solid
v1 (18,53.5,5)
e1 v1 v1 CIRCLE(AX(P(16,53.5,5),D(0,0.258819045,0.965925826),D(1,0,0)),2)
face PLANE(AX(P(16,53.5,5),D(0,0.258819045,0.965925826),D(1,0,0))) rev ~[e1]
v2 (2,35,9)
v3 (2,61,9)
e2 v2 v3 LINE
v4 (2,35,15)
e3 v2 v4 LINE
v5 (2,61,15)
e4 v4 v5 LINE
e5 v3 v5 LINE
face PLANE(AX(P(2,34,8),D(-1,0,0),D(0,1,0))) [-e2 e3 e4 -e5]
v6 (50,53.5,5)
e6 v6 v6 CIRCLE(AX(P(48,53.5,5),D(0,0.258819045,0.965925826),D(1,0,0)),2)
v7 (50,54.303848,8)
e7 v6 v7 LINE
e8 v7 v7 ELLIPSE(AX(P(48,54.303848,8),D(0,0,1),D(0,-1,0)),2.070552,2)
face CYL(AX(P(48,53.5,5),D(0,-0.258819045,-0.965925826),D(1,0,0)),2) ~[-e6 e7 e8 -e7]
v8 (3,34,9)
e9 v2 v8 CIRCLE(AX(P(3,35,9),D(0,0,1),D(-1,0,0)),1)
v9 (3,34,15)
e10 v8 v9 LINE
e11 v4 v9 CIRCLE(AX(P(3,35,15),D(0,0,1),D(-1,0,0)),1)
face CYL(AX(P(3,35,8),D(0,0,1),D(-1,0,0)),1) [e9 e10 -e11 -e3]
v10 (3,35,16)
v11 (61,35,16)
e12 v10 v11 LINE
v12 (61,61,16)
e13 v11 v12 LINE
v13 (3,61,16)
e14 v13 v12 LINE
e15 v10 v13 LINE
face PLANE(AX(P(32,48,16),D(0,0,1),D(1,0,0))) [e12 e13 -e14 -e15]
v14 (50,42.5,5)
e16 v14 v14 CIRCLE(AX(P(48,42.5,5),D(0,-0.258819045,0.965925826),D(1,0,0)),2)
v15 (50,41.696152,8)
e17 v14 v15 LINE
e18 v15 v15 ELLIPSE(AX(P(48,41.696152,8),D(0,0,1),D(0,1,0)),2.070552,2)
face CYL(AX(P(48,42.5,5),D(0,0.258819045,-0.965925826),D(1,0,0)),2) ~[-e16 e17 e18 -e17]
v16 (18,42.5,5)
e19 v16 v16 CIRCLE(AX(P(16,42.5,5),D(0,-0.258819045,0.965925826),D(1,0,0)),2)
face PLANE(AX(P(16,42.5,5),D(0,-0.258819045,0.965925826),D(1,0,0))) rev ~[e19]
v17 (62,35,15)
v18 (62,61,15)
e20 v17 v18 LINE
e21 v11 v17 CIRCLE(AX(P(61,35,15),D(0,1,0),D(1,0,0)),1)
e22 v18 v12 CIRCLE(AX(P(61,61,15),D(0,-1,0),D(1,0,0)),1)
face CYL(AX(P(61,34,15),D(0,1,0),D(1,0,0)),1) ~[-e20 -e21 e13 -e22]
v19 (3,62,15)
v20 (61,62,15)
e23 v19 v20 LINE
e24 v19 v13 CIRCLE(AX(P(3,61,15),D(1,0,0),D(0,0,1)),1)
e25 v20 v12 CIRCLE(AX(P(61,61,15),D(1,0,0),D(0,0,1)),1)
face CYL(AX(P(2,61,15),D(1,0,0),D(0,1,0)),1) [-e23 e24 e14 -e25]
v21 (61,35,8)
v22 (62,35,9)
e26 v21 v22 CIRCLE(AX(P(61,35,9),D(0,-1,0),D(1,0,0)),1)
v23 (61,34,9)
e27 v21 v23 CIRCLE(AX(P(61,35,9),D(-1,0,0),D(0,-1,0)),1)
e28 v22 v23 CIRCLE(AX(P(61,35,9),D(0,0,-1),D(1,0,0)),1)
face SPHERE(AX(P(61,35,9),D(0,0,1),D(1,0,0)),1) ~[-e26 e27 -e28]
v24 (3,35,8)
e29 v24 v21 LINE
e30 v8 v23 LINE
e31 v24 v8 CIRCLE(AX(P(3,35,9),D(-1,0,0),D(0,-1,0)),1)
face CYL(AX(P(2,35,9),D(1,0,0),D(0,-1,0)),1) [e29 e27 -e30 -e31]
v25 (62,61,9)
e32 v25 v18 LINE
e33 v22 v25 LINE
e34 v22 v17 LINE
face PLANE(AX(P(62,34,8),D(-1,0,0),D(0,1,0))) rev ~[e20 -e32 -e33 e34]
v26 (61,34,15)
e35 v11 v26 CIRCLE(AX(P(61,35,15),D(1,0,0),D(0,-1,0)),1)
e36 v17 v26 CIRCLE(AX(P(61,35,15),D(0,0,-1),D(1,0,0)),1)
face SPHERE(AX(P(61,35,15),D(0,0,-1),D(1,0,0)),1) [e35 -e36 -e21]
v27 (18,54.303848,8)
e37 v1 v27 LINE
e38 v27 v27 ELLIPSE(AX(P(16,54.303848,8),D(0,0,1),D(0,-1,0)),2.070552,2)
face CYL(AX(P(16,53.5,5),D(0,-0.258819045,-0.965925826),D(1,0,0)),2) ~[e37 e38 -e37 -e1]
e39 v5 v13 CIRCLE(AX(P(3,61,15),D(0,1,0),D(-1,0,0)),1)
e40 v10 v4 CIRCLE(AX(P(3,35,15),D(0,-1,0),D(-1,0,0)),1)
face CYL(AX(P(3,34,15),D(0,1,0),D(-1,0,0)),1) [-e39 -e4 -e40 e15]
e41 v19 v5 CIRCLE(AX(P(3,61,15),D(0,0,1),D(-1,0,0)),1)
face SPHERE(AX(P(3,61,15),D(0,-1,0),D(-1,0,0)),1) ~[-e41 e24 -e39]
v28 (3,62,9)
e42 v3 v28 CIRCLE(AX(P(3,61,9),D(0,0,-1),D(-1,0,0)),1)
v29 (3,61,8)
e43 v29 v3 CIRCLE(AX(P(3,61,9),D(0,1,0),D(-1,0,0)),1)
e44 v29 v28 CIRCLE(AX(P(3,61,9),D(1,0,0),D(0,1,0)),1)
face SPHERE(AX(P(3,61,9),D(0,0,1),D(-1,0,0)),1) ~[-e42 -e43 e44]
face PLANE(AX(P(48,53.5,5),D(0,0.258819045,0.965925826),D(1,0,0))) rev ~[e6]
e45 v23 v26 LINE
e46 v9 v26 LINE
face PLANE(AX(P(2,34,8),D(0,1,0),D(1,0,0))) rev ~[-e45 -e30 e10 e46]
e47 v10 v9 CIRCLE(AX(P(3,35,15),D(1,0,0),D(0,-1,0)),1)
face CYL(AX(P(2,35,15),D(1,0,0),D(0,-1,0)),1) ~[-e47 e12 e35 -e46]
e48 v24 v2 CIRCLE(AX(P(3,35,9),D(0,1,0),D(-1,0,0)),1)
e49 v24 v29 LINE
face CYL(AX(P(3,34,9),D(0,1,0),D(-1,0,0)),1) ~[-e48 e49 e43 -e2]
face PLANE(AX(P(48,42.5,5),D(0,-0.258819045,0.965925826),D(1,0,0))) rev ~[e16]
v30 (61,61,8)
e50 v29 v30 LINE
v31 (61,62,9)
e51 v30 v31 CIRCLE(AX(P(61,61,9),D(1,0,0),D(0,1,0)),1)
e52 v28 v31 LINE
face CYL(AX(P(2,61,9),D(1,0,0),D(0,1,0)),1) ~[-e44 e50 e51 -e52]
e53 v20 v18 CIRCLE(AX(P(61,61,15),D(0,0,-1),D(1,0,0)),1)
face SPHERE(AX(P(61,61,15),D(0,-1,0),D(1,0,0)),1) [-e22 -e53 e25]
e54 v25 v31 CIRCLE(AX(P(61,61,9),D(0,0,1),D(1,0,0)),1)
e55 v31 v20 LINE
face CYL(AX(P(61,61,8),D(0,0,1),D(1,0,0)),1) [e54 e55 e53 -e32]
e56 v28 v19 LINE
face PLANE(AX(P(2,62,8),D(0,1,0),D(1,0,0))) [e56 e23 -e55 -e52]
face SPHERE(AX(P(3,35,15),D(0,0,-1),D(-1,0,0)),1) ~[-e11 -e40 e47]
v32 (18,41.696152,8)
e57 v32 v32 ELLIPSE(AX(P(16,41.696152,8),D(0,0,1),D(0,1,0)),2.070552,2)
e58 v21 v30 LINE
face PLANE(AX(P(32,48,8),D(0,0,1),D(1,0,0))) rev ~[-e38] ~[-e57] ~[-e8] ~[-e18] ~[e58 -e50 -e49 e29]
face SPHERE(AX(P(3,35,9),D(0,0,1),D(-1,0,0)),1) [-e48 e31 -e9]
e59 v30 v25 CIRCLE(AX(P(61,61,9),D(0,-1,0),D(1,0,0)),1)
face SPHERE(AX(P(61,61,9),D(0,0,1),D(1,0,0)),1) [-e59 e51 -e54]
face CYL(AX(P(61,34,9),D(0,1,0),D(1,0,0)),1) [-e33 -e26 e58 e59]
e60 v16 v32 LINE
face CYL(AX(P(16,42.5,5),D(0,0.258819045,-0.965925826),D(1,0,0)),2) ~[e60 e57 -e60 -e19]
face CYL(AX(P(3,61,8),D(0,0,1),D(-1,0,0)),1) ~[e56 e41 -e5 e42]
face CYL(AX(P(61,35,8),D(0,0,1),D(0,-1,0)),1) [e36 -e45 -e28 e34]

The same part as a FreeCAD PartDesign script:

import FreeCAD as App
import Part
import Sketcher
from FreeCAD import Vector
Q = App.Units.Quantity

doc = App.newDocument("Part")
body = doc.addObject("PartDesign::Body", "Body")

sketch1 = body.newObject("Sketcher::SketchObject", "Sketch")
sketch1.AttachmentSupport = (doc.getObject("XY_Plane"), [""])
sketch1.MapMode = "FlatFace"
sketch1.addGeometry(Part.Circle(Vector(0, 0, 0), Vector(0, 0, 1), 2), False)
sketch1.addConstraint([
    Sketcher.Constraint("Coincident", 0, 3, -1, 1),
    Sketcher.Constraint("Diameter", 0, Q("4 mm")),
])
pad1 = body.newObject("PartDesign::Pad", "Pad")
pad1.Profile = sketch1
pad1.Length = 5
body2 = doc.addObject("PartDesign::Body", "Body001")
doc.recompute()

body.Placement = App.Placement(Vector(0, 0, 0), App.Rotation(Vector(1, 0, 0), 15))
boolean = body2.newObject("PartDesign::Boolean", "Boolean")
boolean.Type = "Fuse"
boolean.addObjects([body])
body3 = doc.addObject("PartDesign::Body", "Body002")
doc.recompute()

body2.Placement = App.Placement(Vector(48, 42.5, 5), App.Rotation(Vector(0, 0, 1), 0))
boolean2 = body3.newObject("PartDesign::Boolean", "Boolean001")
boolean2.Type = "Fuse"
boolean2.addObjects([body2])
body4 = doc.addObject("PartDesign::Body", "Body003")

sketch2 = body4.newObject("Sketcher::SketchObject", "Sketch001")
sketch2.AttachmentSupport = (doc.getObject("XY_Plane003"), [""])
sketch2.MapMode = "FlatFace"
sketch2.addGeometry(Part.Circle(Vector(0, 0, 0), Vector(0, 0, 1), 2), False)
sketch2.addConstraint([
    Sketcher.Constraint("Coincident", 0, 3, -1, 1),
    Sketcher.Constraint("Diameter", 0, Q("4 mm")),
])
pad2 = body4.newObject("PartDesign::Pad", "Pad001")
pad2.Profile = sketch2
pad2.Length = 5
body5 = doc.addObject("PartDesign::Body", "Body004")
doc.recompute()

body4.Placement = App.Placement(Vector(0, 0, 0), App.Rotation(Vector(1, 0, 0), 345))
boolean3 = body5.newObject("PartDesign::Boolean", "Boolean002")
boolean3.Type = "Fuse"
boolean3.addObjects([body4])
body6 = doc.addObject("PartDesign::Body", "Body005")
doc.recompute()

body5.Placement = App.Placement(Vector(48, 53.5, 5), App.Rotation(Vector(0, 0, 1), 0))
boolean4 = body6.newObject("PartDesign::Boolean", "Boolean003")
boolean4.Type = "Fuse"
boolean4.addObjects([body5])
body7 = doc.addObject("PartDesign::Body", "Body006")

sketch3 = body7.newObject("Sketcher::SketchObject", "Sketch002")
sketch3.AttachmentSupport = (doc.getObject("XY_Plane006"), [""])
sketch3.MapMode = "FlatFace"
sketch3.addGeometry(Part.Circle(Vector(0, 0, 0), Vector(0, 0, 1), 2), False)
sketch3.addConstraint([
    Sketcher.Constraint("Coincident", 0, 3, -1, 1),
    Sketcher.Constraint("Diameter", 0, Q("4 mm")),
])
pad3 = body7.newObject("PartDesign::Pad", "Pad002")
pad3.Profile = sketch3
pad3.Length = 5
body8 = doc.addObject("PartDesign::Body", "Body007")
doc.recompute()

body7.Placement = App.Placement(Vector(0, 0, 0), App.Rotation(Vector(1, 0, 0), 345))
boolean5 = body8.newObject("PartDesign::Boolean", "Boolean004")
boolean5.Type = "Fuse"
boolean5.addObjects([body7])
body9 = doc.addObject("PartDesign::Body", "Body008")
doc.recompute()

body8.Placement = App.Placement(Vector(16, 53.5, 5), App.Rotation(Vector(0, 0, 1), 0))
boolean6 = body9.newObject("PartDesign::Boolean", "Boolean005")
boolean6.Type = "Fuse"
boolean6.addObjects([body8])
body10 = doc.addObject("PartDesign::Body", "Body009")

sketch4 = body10.newObject("Sketcher::SketchObject", "Sketch003")
sketch4.AttachmentSupport = (doc.getObject("XY_Plane009"), [""])
sketch4.MapMode = "FlatFace"
sketch4.AttachmentOffset = App.Placement(Vector(0, 0, 29), App.Rotation())
sketch4.addGeometry([
    Part.LineSegment(Vector(0, 28, 0), Vector(0, 0, 0)),
    Part.LineSegment(Vector(0, 0, 0), Vector(60, 0, 0)),
    Part.LineSegment(Vector(60, 0, 0), Vector(60, 28, 0)),
    Part.LineSegment(Vector(60, 28, 0), Vector(0, 28, 0)),
], False)
sketch4.addConstraint([
    Sketcher.Constraint("Coincident", 0, 2, 1, 1),
    Sketcher.Constraint("Coincident", 1, 2, 2, 1),
    Sketcher.Constraint("Coincident", 2, 2, 3, 1),
    Sketcher.Constraint("Coincident", 3, 2, 0, 1),
    Sketcher.Constraint("Vertical", 0),
    Sketcher.Constraint("Horizontal", 1),
    Sketcher.Constraint("Vertical", 2),
    Sketcher.Constraint("Horizontal", 3),
    Sketcher.Constraint("Coincident", 0, 2, -1, 1),
    Sketcher.Constraint("DistanceX", 1, 1, 1, 2, Q("60 mm")),
    Sketcher.Constraint("DistanceY", 0, 2, 0, 1, Q("28 mm")),
])
pad4 = body10.newObject("PartDesign::Pad", "Pad003")
pad4.Profile = sketch4
pad4.Length = 8
doc.recompute()

fillet = body10.newObject("PartDesign::Fillet", "Fillet")
fillet.Base = (pad4, ["Edge1"])
fillet.UseAllEdges = True
fillet.Radius = 1
body11 = doc.addObject("PartDesign::Body", "Body010")
doc.recompute()

body10.Placement = App.Placement(Vector(2, 34, -21), App.Rotation(Vector(0, 0, 1), 0))
boolean7 = body11.newObject("PartDesign::Boolean", "Boolean006")
boolean7.Type = "Fuse"
boolean7.addObjects([body10])
body12 = doc.addObject("PartDesign::Body", "Body011")

sketch5 = body12.newObject("Sketcher::SketchObject", "Sketch004")
sketch5.AttachmentSupport = (doc.getObject("XY_Plane011"), [""])
sketch5.MapMode = "FlatFace"
sketch5.addGeometry(Part.Circle(Vector(0, 0, 0), Vector(0, 0, 1), 2), False)
sketch5.addConstraint([
    Sketcher.Constraint("Coincident", 0, 3, -1, 1),
    Sketcher.Constraint("Diameter", 0, Q("4 mm")),
])
pad5 = body12.newObject("PartDesign::Pad", "Pad004")
pad5.Profile = sketch5
pad5.Length = 5
body13 = doc.addObject("PartDesign::Body", "Body012")
doc.recompute()

body12.Placement = App.Placement(Vector(0, 0, 0), App.Rotation(Vector(1, 0, 0), 15))
boolean8 = body13.newObject("PartDesign::Boolean", "Boolean007")
boolean8.Type = "Fuse"
boolean8.addObjects([body12])
body14 = doc.addObject("PartDesign::Body", "Body013")
body14.AllowCompound = True
doc.recompute()

body13.Placement = App.Placement(Vector(16, 42.5, 5), App.Rotation(Vector(0, 0, 1), 0))
boolean9 = body14.newObject("PartDesign::Boolean", "Boolean008")
boolean9.Type = "Fuse"
boolean9.addObjects([body13])
doc.recompute()

boolean10 = body14.newObject("PartDesign::Boolean", "Boolean009")
boolean10.Type = "Fuse"
boolean10.addObjects([body3])
doc.recompute()

boolean11 = body14.newObject("PartDesign::Boolean", "Boolean010")
boolean11.Type = "Fuse"
boolean11.addObjects([body6])
doc.recompute()

boolean12 = body14.newObject("PartDesign::Boolean", "Boolean011")
boolean12.Type = "Fuse"
boolean12.addObjects([body9])
doc.recompute()

boolean13 = body14.newObject("PartDesign::Boolean", "Boolean012")
boolean13.Type = "Fuse"
boolean13.addObjects([body11])

doc.recompute()
